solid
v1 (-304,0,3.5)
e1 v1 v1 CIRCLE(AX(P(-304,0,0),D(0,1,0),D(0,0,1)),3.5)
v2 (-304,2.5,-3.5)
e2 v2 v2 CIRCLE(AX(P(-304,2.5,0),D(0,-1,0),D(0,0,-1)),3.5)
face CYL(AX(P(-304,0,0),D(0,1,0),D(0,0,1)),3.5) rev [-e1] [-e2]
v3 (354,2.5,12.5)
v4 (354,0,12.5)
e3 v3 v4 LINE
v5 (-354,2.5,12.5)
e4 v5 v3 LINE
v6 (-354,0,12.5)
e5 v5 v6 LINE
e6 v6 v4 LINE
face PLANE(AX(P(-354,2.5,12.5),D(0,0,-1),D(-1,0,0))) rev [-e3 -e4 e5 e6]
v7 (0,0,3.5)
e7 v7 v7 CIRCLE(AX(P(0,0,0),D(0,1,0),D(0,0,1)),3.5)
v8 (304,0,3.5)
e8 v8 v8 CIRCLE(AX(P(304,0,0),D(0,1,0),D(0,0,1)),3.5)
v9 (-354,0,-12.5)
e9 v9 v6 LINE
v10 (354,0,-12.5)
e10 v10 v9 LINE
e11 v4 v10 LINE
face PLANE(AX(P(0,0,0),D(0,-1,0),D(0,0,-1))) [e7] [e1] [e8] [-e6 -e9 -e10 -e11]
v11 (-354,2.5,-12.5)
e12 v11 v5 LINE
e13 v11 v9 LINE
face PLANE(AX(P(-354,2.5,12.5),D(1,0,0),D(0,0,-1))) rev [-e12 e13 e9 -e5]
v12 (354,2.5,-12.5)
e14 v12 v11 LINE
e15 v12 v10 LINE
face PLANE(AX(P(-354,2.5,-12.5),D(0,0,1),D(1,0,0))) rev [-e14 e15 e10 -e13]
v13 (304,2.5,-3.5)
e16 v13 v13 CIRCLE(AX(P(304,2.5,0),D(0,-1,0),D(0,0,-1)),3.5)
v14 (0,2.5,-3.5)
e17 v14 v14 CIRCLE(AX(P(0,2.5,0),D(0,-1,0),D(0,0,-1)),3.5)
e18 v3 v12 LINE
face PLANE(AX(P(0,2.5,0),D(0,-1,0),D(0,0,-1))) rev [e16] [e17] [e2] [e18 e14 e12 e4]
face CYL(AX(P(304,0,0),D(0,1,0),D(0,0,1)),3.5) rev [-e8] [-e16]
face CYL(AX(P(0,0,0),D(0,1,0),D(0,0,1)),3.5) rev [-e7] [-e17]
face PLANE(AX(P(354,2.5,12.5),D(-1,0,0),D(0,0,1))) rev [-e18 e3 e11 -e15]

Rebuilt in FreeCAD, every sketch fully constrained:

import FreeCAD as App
import Part
import Sketcher
from FreeCAD import Vector


def add_polygon(sketch, points):
    """Adds a closed chain of lines whose ends are joined by coincident constraints."""
    first, n = sketch.GeometryCount, len(points)
    for a, b in zip(points, points[1:] + points[:1]):
        sketch.addGeometry(Part.LineSegment(App.Vector(*a, 0), App.Vector(*b, 0)), False)
    for i in range(n):
        sketch.addConstraint(Sketcher.Constraint("Coincident", first + i, 2, first + (i + 1) % n, 1))

doc = App.newDocument("Part")
params = doc.addObject("Spreadsheet::Sheet", "Params")
for row, (alias, value) in enumerate([
    ("sketch1_width", "708 mm"),
    ("sketch1_height", "25 mm"),
    ("pad1_length", "2.5 mm"),
    ("sketch2_diameter", "7 mm"),
    ("pocket1_length", "710.458891 mm"),
    ("linearpattern_pitch", "304 mm"),
], start=1):
    params.set(f"A{row}", alias)
    params.set(f"B{row}", "=" + value)
    params.setAlias(f"B{row}", alias)

body = doc.addObject("PartDesign::Body", "Body")

# Sketch on XZ plane
sketch1 = body.newObject("Sketcher::SketchObject", "Sketch")
sketch1.AttachmentSupport = (doc.getObject("XZ_Plane"), [""])
sketch1.MapMode = "FlatFace"
add_polygon(sketch1, [(-354, -12), (-354, 12), (354, 12), (354, -12)])  # lines 0-3
sketch1.addConstraint(Sketcher.Constraint("Vertical", 0))
sketch1.addConstraint(Sketcher.Constraint("Horizontal", 1))
sketch1.addConstraint(Sketcher.Constraint("Vertical", 2))
sketch1.addConstraint(Sketcher.Constraint("Horizontal", 3))
sketch1.addConstraint(Sketcher.Constraint("Symmetric", 0, 2, 2, 2, -1, 1))
sketch1.addConstraint(Sketcher.Constraint("DistanceX", 1, 1, 1, 2, 708.0))
sketch1.addConstraint(Sketcher.Constraint("DistanceY", 0, 1, 0, 2, 25.0))
sketch1.setExpression("Constraints[9]", "Params.sketch1_width")
sketch1.setExpression("Constraints[10]", "Params.sketch1_height")
pad1 = body.newObject("PartDesign::Pad", "Pad")
pad1.Profile = sketch1
pad1.setExpression("Length", "Params.pad1_length")
pad1.Reversed = True

# Sketch on XZ plane
sketch2 = body.newObject("Sketcher::SketchObject", "Sketch001")
sketch2.AttachmentSupport = (doc.getObject("XZ_Plane"), [""])
sketch2.MapMode = "FlatFace"
sketch2.AttachmentOffset = App.Placement(Vector(0, 0, -2.5), App.Rotation())
sketch2.addGeometry(Part.Circle(Vector(-304, 0, 0), Vector(0, 0, 1), 3.5), False)
sketch2.addConstraint(Sketcher.Constraint("PointOnObject", 0, 3, -1))
sketch2.addConstraint(Sketcher.Constraint("Diameter", 0, 7.0))
sketch2.addConstraint(Sketcher.Constraint("DistanceX", 0, 3, -1, 1, 304.0))
sketch2.setExpression("Constraints[1]", "Params.sketch2_diameter")
pocket1 = body.newObject("PartDesign::Pocket", "Pocket")
pocket1.Profile = sketch2
pocket1.setExpression("Length", "Params.pocket1_length")
pocket1.Midplane = True
doc.recompute()

linearpattern = body.newObject("PartDesign::LinearPattern", "LinearPattern")
linearpattern.Originals = [pocket1]
linearpattern.Direction = (doc.getObject("X_Axis"), [""])
linearpattern.Mode = "offset"
linearpattern.setExpression("Offset", "Params.linearpattern_pitch")
linearpattern.Occurrences = 3
body.Tip = linearpattern

doc.recompute()
